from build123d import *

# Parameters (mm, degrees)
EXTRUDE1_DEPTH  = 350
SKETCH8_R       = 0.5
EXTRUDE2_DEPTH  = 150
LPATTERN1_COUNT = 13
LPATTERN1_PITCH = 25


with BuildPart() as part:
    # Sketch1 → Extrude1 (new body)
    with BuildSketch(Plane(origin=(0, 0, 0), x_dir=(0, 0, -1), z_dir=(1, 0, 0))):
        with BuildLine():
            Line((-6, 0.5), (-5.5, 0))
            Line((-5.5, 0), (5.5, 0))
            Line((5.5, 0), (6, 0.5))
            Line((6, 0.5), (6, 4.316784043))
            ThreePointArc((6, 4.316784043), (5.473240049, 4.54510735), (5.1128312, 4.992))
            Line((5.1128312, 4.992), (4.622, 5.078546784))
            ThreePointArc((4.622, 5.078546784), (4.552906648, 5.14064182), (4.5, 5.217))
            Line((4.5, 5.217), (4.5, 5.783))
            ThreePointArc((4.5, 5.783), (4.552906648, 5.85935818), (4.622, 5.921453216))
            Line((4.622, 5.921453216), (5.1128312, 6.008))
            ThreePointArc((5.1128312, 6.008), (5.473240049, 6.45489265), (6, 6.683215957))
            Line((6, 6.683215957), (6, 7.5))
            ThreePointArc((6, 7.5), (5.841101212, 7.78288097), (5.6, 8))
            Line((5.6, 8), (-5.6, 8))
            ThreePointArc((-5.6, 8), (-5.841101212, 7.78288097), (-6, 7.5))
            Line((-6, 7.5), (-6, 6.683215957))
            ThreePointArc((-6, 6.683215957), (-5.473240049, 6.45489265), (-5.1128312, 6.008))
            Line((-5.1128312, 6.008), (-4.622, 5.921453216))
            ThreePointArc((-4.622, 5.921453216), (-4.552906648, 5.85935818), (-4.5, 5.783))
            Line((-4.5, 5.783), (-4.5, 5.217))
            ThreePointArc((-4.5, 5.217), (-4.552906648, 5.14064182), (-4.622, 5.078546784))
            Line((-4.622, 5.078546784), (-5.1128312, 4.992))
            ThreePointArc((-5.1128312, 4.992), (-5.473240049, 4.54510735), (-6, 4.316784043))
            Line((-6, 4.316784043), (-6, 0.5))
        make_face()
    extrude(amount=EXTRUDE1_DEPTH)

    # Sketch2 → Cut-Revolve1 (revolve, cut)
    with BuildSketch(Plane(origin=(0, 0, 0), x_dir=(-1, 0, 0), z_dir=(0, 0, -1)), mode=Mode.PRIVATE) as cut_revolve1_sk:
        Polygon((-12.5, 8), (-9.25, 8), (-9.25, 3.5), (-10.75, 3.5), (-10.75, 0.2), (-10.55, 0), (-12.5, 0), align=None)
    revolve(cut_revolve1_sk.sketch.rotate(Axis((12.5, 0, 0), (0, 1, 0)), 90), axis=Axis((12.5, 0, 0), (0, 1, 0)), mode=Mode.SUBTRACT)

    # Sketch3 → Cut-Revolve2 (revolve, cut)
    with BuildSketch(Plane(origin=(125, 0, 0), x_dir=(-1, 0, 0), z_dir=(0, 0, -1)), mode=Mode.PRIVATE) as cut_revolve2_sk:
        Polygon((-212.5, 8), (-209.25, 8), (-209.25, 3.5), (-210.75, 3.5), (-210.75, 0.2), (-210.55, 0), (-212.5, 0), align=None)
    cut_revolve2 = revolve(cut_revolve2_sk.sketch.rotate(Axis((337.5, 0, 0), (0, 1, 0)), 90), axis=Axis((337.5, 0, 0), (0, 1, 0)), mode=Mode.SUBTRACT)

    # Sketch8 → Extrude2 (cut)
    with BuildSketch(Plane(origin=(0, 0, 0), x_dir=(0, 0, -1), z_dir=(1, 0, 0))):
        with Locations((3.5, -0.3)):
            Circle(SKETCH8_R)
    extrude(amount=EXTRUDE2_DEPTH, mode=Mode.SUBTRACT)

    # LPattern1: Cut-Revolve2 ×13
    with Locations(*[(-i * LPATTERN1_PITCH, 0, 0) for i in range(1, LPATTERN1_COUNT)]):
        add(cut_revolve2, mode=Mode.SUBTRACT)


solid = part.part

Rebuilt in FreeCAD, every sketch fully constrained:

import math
import FreeCAD as App
import Part
import Sketcher

V = App.Vector
Q = App.Units.Quantity

doc = App.newDocument("Part")
body = doc.addObject("PartDesign::Body", "Body")

# Sketch on YZ plane
sketch1 = doc.addObject("Sketcher::SketchObject", "Sketch")
body.addObject(sketch1)
sketch1.AttachmentSupport = (doc.YZ_Plane, [""])
sketch1.MapMode = "FlatFace"
sketch1.addGeometry([
    Part.LineSegment(V(0.5, 6, 0), V(0, 5.5, 0)),  # 0
    Part.LineSegment(V(0, 5.5, 0), V(0, -5.5, 0)),  # 1
    Part.LineSegment(V(0, -5.5, 0), V(0.5, -6, 0)),  # 2
    Part.LineSegment(V(0.5, -6, 0), V(4.32, -6, 0)),  # 3
    Part.ArcOfCircle(Part.Circle(V(5.5, -6.2, 0), V(0, 0, 1), 1.2), math.radians(115), math.radians(170)),  # 4
    Part.LineSegment(V(4.99, -5.11, 0), V(5.08, -4.62, 0)),  # 5
    Part.ArcOfCircle(Part.Circle(V(5.41, -4.85, 0), V(0, 0, 1), 0.4), math.radians(118), math.radians(145)),  # 6
    Part.LineSegment(V(5.22, -4.5, 0), V(5.78, -4.5, 0)),  # 7
    Part.ArcOfCircle(Part.Circle(V(5.59, -4.85, 0), V(0, 0, 1), 0.4), math.radians(35), math.radians(62)),  # 8
    Part.LineSegment(V(5.92, -4.62, 0), V(6.01, -5.11, 0)),  # 9
    Part.ArcOfCircle(Part.Circle(V(5.5, -6.2, 0), V(0, 0, 1), 1.2), math.radians(10), math.radians(65)),  # 10
    Part.LineSegment(V(6.68, -6, 0), V(7.5, -6, 0)),  # 11
    Part.ArcOfCircle(Part.Circle(V(7.16, -5.06, 0), V(0, 0, 1), 1), math.radians(-70), math.radians(-33)),  # 12
    Part.LineSegment(V(8, -5.6, 0), V(8, 5.6, 0)),  # 13
    Part.ArcOfCircle(Part.Circle(V(7.16, 5.06, 0), V(0, 0, 1), 1), math.radians(33), math.radians(70)),  # 14
    Part.LineSegment(V(7.5, 6, 0), V(6.68, 6, 0)),  # 15
    Part.ArcOfCircle(Part.Circle(V(5.5, 6.2, 0), V(0, 0, 1), 1.2), math.radians(-65), math.radians(-10)),  # 16
    Part.LineSegment(V(6.01, 5.11, 0), V(5.92, 4.62, 0)),  # 17
    Part.ArcOfCircle(Part.Circle(V(5.59, 4.85, 0), V(0, 0, 1), 0.4), math.radians(-62), math.radians(-35)),  # 18
    Part.LineSegment(V(5.78, 4.5, 0), V(5.22, 4.5, 0)),  # 19
    Part.ArcOfCircle(Part.Circle(V(5.41, 4.85, 0), V(0, 0, 1), 0.4), math.radians(-145), math.radians(-118)),  # 20
    Part.LineSegment(V(5.08, 4.62, 0), V(4.99, 5.11, 0)),  # 21
    Part.ArcOfCircle(Part.Circle(V(5.5, 6.2, 0), V(0, 0, 1), 1.2), math.radians(-170), math.radians(-115)),  # 22
    Part.LineSegment(V(4.32, 6, 0), V(0.5, 6, 0)),  # 23
], False)
sketch1.addConstraint([
    Sketcher.Constraint("Coincident", 0, 2, 1, 1),
    Sketcher.Constraint("Coincident", 1, 2, 2, 1),
    Sketcher.Constraint("Coincident", 2, 2, 3, 1),
    Sketcher.Constraint("Coincident", 3, 2, 4, 2),
    Sketcher.Constraint("Coincident", 4, 1, 5, 1),
    Sketcher.Constraint("Coincident", 5, 2, 6, 2),
    Sketcher.Constraint("Coincident", 6, 1, 7, 1),
    Sketcher.Constraint("Coincident", 7, 2, 8, 2),
    Sketcher.Constraint("Coincident", 8, 1, 9, 1),
    Sketcher.Constraint("Coincident", 9, 2, 10, 2),
    Sketcher.Constraint("Coincident", 10, 1, 11, 1),
    Sketcher.Constraint("Coincident", 11, 2, 12, 1),
    Sketcher.Constraint("Coincident", 12, 2, 13, 1),
    Sketcher.Constraint("Coincident", 13, 2, 14, 1),
    Sketcher.Constraint("Coincident", 14, 2, 15, 1),
    Sketcher.Constraint("Coincident", 15, 2, 16, 2),
    Sketcher.Constraint("Coincident", 16, 1, 17, 1),
    Sketcher.Constraint("Coincident", 17, 2, 18, 2),
    Sketcher.Constraint("Coincident", 18, 1, 19, 1),
    Sketcher.Constraint("Coincident", 19, 2, 20, 2),
    Sketcher.Constraint("Coincident", 20, 1, 21, 1),
    Sketcher.Constraint("Coincident", 21, 2, 22, 2),
    Sketcher.Constraint("Coincident", 22, 1, 23, 1),
    Sketcher.Constraint("Coincident", 23, 2, 0, 1),
    Sketcher.Constraint("Vertical", 1),
    Sketcher.Constraint("Horizontal", 3),
    Sketcher.Constraint("Horizontal", 7),
    Sketcher.Constraint("Horizontal", 11),
    Sketcher.Constraint("Vertical", 13),
    Sketcher.Constraint("Horizontal", 15),
    Sketcher.Constraint("Horizontal", 19),
    Sketcher.Constraint("Horizontal", 23),
    Sketcher.Constraint("Coincident", 10, 3, 4, 3),
    Sketcher.Constraint("Coincident", 22, 3, 16, 3),
    Sketcher.Constraint("Equal", 6, 8),
    Sketcher.Constraint("Equal", 4, 10),
    Sketcher.Constraint("Equal", 12, 14),
    Sketcher.Constraint("Equal", 10, 16),
    Sketcher.Constraint("Equal", 8, 18),
    Sketcher.Constraint("Equal", 18, 20),
    Sketcher.Constraint("Equal", 16, 22),
    Sketcher.Constraint("Symmetric", 0, 2, 1, 2, -1, 1),
    Sketcher.Constraint("Symmetric", 12, 3, 14, 3, -1),
    Sketcher.Constraint("Symmetric", 4, 3, 16, 3, -1),
    Sketcher.Constraint("Symmetric", 8, 3, 18, 3, -1),
    Sketcher.Constraint("Symmetric", 6, 3, 20, 3, -1),
    Sketcher.Constraint("Symmetric", 2, 2, 23, 2, -1),
    Sketcher.Constraint("Perpendicular", 0, 2),
    Sketcher.Constraint("Parallel", 5, 17),
    Sketcher.Constraint("Parallel", 9, 21),
    Sketcher.Constraint("Horizontal", 6, 3, 8, 3),
    Sketcher.Constraint("Horizontal", 5, 2, 8, 1),
    Sketcher.Constraint("Horizontal", 4, 1, 9, 2),
    Sketcher.Constraint("Horizontal", 3, 2, 10, 1),
    Sketcher.Constraint("Horizontal", 17, 2, 20, 1),
    Sketcher.Constraint("Horizontal", 16, 1, 21, 2),
    Sketcher.Constraint("Horizontal", 15, 2, 22, 1),
    Sketcher.Constraint("Vertical", 9, 2, 16, 1),
    Sketcher.Constraint("Vertical", 7, 2, 18, 1),
    Sketcher.Constraint("Radius", 12, Q("1 mm")),
    Sketcher.Constraint("Radius", 4, Q("1.2 mm")),
    Sketcher.Constraint("Radius", 6, Q("0.4 mm")),
    Sketcher.Constraint("DistanceY", 1, 2, 1, 1, Q("11 mm")),
    Sketcher.Constraint("Angle", 5, Q("80 deg")),
    Sketcher.Constraint("DistanceY", 13, 1, 13, 2, Q("11.2 mm")),
    Sketcher.Constraint("DistanceY", 2, 2, -1, 1, Q("6 mm")),
    Sketcher.Constraint("DistanceX", -1, 1, 12, 2, Q("8 mm")),
    Sketcher.Constraint("DistanceX", 2, 2, 10, 3, Q("5 mm")),
    Sketcher.Constraint("DistanceX", 4, 3, 11, 2, Q("2 mm")),
    Sketcher.Constraint("DistanceY", 4, 3, -1, 1, Q("6.2 mm")),
    Sketcher.Constraint("DistanceY", 6, 1, -1, 1, Q("4.5 mm")),
    Sketcher.Constraint("DistanceX", 7, 1, 7, 2, Q("0.566 mm")),
    Sketcher.Constraint("DistanceX", -1, 1, 4, 1, Q("4.992 mm")),
    Sketcher.Constraint("DistanceY", 5, 2, -1, 1, Q("4.622 mm")),
])
pad1 = doc.addObject("PartDesign::Pad", "Pad")
body.addObject(pad1)
pad1.Profile = sketch1
pad1.Length = 350

# Sketch on XY plane
sketch2 = doc.addObject("Sketcher::SketchObject", "Sketch001")
body.addObject(sketch2)
sketch2.AttachmentSupport = (doc.XY_Plane, [""])
sketch2.MapMode = "FlatFace"
sketch2.addGeometry([
    Part.LineSegment(V(9.25, 8, 0), V(12.5, 8, 0)),  # 0
    Part.LineSegment(V(12.5, 8, 0), V(12.5, 0, 0)),  # 1
    Part.LineSegment(V(12.5, 0, 0), V(10.55, 0, 0)),  # 2
    Part.LineSegment(V(10.55, 0, 0), V(10.75, 0.2, 0)),  # 3
    Part.LineSegment(V(10.75, 0.2, 0), V(10.75, 3.5, 0)),  # 4
    Part.LineSegment(V(10.75, 3.5, 0), V(9.25, 3.5, 0)),  # 5
    Part.LineSegment(V(9.25, 3.5, 0), V(9.25, 8, 0)),  # 6
], False)
sketch2.addGeometry(Part.LineSegment(V(12.5, 0, 0), V(12.5, 8, 0)), True)  # axis
sketch2.addConstraint([
    Sketcher.Constraint("Coincident", 0, 2, 1, 1),
    Sketcher.Constraint("Coincident", 1, 2, 2, 1),
    Sketcher.Constraint("Coincident", 2, 2, 3, 1),
    Sketcher.Constraint("Coincident", 3, 2, 4, 1),
    Sketcher.Constraint("Coincident", 4, 2, 5, 1),
    Sketcher.Constraint("Coincident", 5, 2, 6, 1),
    Sketcher.Constraint("Coincident", 6, 2, 0, 1),
    Sketcher.Constraint("Horizontal", 0),
    Sketcher.Constraint("Vertical", 1),
    Sketcher.Constraint("Horizontal", 2),
    Sketcher.Constraint("Vertical", 4),
    Sketcher.Constraint("Horizontal", 5),
    Sketcher.Constraint("Vertical", 6),
    Sketcher.Constraint("Vertical", 7),
    Sketcher.Constraint("Coincident", 7, 1, 1, 2),
    Sketcher.Constraint("PointOnObject", 1, 2, -1),
    Sketcher.Constraint("Horizontal", 6, 2, 7, 2),
    Sketcher.Constraint("DistanceY", 1, 2, 1, 1, Q("8 mm")),
    Sketcher.Constraint("Angle", 3, Q("45 deg")),
    Sketcher.Constraint("DistanceX", 5, 2, 5, 1, Q("1.5 mm")),
    Sketcher.Constraint("DistanceY", 4, 1, 4, 2, Q("3.3 mm")),
    Sketcher.Constraint("DistanceY", 6, 1, 6, 2, Q("4.5 mm")),
    Sketcher.Constraint("DistanceX", 0, 1, 0, 2, Q("3.25 mm")),
    Sketcher.Constraint("DistanceX", -1, 1, 0, 2, Q("12.5 mm")),
])
groove = doc.addObject("PartDesign::Groove", "Groove")
body.addObject(groove)
groove.Profile = sketch2
groove.ReferenceAxis = (sketch2, ["Axis0"])
groove.Angle = 360

# Sketch on XY plane
sketch3 = doc.addObject("Sketcher::SketchObject", "Sketch002")
body.addObject(sketch3)
sketch3.AttachmentSupport = (doc.XY_Plane, [""])
sketch3.MapMode = "FlatFace"
sketch3.addGeometry([
    Part.LineSegment(V(334.25, 8, 0), V(337.5, 8, 0)),  # 0
    Part.LineSegment(V(337.5, 8, 0), V(337.5, 0, 0)),  # 1
    Part.LineSegment(V(337.5, 0, 0), V(335.55, 0, 0)),  # 2
    Part.LineSegment(V(335.55, 0, 0), V(335.75, 0.2, 0)),  # 3
    Part.LineSegment(V(335.75, 0.2, 0), V(335.75, 3.5, 0)),  # 4
    Part.LineSegment(V(335.75, 3.5, 0), V(334.25, 3.5, 0)),  # 5
    Part.LineSegment(V(334.25, 3.5, 0), V(334.25, 8, 0)),  # 6
], False)
sketch3.addGeometry(Part.LineSegment(V(337.5, 0, 0), V(337.5, 8, 0)), True)  # axis
sketch3.addConstraint([
    Sketcher.Constraint("Coincident", 0, 2, 1, 1),
    Sketcher.Constraint("Coincident", 1, 2, 2, 1),
    Sketcher.Constraint("Coincident", 2, 2, 3, 1),
    Sketcher.Constraint("Coincident", 3, 2, 4, 1),
    Sketcher.Constraint("Coincident", 4, 2, 5, 1),
    Sketcher.Constraint("Coincident", 5, 2, 6, 1),
    Sketcher.Constraint("Coincident", 6, 2, 0, 1),
    Sketcher.Constraint("Horizontal", 0),
    Sketcher.Constraint("Vertical", 1),
    Sketcher.Constraint("Horizontal", 2),
    Sketcher.Constraint("Vertical", 4),
    Sketcher.Constraint("Horizontal", 5),
    Sketcher.Constraint("Vertical", 6),
    Sketcher.Constraint("Vertical", 7),
    Sketcher.Constraint("Coincident", 7, 1, 1, 2),
    Sketcher.Constraint("PointOnObject", 1, 2, -1),
    Sketcher.Constraint("Horizontal", 6, 2, 7, 2),
    Sketcher.Constraint("DistanceY", 1, 2, 1, 1, Q("8 mm")),
    Sketcher.Constraint("Angle", 3, Q("45 deg")),
    Sketcher.Constraint("DistanceX", 5, 2, 5, 1, Q("1.5 mm")),
    Sketcher.Constraint("DistanceY", 4, 1, 4, 2, Q("3.3 mm")),
    Sketcher.Constraint("DistanceY", 6, 1, 6, 2, Q("4.5 mm")),
    Sketcher.Constraint("DistanceX", 0, 1, 0, 2, Q("3.25 mm")),
    Sketcher.Constraint("DistanceX", -1, 1, 0, 2, Q("337.5 mm")),
])
groove2 = doc.addObject("PartDesign::Groove", "Groove001")
body.addObject(groove2)
groove2.Profile = sketch3
groove2.ReferenceAxis = (sketch3, ["Axis0"])
groove2.Angle = 360

# Sketch on YZ plane
sketch4 = doc.addObject("Sketcher::SketchObject", "Sketch003")
body.addObject(sketch4)
sketch4.AttachmentSupport = (doc.YZ_Plane, [""])
sketch4.MapMode = "FlatFace"
sketch4.addGeometry(Part.Circle(V(-0.3, -3.5, 0), V(0, 0, 1), 0.5), False)
sketch4.addConstraint([
    Sketcher.Constraint("Diameter", 0, Q("1 mm")),
    Sketcher.Constraint("DistanceX", 0, 3, -1, 1, Q("0.3 mm")),
    Sketcher.Constraint("DistanceY", 0, 3, -1, 1, Q("3.5 mm")),
])
pocket1 = doc.addObject("PartDesign::Pocket", "Pocket")
body.addObject(pocket1)
pocket1.Profile = sketch4
pocket1.Length = 150
pocket1.Reversed = True
doc.recompute()

linearpattern = doc.addObject("PartDesign::LinearPattern", "LinearPattern")
body.addObject(linearpattern)
linearpattern.Originals = [groove2]
linearpattern.Direction = (doc.X_Axis, [""])
linearpattern.Mode = "offset"
linearpattern.Offset = 25
linearpattern.Occurrences = 13
linearpattern.Reversed = True
body.Tip = linearpattern

doc.recompute()
